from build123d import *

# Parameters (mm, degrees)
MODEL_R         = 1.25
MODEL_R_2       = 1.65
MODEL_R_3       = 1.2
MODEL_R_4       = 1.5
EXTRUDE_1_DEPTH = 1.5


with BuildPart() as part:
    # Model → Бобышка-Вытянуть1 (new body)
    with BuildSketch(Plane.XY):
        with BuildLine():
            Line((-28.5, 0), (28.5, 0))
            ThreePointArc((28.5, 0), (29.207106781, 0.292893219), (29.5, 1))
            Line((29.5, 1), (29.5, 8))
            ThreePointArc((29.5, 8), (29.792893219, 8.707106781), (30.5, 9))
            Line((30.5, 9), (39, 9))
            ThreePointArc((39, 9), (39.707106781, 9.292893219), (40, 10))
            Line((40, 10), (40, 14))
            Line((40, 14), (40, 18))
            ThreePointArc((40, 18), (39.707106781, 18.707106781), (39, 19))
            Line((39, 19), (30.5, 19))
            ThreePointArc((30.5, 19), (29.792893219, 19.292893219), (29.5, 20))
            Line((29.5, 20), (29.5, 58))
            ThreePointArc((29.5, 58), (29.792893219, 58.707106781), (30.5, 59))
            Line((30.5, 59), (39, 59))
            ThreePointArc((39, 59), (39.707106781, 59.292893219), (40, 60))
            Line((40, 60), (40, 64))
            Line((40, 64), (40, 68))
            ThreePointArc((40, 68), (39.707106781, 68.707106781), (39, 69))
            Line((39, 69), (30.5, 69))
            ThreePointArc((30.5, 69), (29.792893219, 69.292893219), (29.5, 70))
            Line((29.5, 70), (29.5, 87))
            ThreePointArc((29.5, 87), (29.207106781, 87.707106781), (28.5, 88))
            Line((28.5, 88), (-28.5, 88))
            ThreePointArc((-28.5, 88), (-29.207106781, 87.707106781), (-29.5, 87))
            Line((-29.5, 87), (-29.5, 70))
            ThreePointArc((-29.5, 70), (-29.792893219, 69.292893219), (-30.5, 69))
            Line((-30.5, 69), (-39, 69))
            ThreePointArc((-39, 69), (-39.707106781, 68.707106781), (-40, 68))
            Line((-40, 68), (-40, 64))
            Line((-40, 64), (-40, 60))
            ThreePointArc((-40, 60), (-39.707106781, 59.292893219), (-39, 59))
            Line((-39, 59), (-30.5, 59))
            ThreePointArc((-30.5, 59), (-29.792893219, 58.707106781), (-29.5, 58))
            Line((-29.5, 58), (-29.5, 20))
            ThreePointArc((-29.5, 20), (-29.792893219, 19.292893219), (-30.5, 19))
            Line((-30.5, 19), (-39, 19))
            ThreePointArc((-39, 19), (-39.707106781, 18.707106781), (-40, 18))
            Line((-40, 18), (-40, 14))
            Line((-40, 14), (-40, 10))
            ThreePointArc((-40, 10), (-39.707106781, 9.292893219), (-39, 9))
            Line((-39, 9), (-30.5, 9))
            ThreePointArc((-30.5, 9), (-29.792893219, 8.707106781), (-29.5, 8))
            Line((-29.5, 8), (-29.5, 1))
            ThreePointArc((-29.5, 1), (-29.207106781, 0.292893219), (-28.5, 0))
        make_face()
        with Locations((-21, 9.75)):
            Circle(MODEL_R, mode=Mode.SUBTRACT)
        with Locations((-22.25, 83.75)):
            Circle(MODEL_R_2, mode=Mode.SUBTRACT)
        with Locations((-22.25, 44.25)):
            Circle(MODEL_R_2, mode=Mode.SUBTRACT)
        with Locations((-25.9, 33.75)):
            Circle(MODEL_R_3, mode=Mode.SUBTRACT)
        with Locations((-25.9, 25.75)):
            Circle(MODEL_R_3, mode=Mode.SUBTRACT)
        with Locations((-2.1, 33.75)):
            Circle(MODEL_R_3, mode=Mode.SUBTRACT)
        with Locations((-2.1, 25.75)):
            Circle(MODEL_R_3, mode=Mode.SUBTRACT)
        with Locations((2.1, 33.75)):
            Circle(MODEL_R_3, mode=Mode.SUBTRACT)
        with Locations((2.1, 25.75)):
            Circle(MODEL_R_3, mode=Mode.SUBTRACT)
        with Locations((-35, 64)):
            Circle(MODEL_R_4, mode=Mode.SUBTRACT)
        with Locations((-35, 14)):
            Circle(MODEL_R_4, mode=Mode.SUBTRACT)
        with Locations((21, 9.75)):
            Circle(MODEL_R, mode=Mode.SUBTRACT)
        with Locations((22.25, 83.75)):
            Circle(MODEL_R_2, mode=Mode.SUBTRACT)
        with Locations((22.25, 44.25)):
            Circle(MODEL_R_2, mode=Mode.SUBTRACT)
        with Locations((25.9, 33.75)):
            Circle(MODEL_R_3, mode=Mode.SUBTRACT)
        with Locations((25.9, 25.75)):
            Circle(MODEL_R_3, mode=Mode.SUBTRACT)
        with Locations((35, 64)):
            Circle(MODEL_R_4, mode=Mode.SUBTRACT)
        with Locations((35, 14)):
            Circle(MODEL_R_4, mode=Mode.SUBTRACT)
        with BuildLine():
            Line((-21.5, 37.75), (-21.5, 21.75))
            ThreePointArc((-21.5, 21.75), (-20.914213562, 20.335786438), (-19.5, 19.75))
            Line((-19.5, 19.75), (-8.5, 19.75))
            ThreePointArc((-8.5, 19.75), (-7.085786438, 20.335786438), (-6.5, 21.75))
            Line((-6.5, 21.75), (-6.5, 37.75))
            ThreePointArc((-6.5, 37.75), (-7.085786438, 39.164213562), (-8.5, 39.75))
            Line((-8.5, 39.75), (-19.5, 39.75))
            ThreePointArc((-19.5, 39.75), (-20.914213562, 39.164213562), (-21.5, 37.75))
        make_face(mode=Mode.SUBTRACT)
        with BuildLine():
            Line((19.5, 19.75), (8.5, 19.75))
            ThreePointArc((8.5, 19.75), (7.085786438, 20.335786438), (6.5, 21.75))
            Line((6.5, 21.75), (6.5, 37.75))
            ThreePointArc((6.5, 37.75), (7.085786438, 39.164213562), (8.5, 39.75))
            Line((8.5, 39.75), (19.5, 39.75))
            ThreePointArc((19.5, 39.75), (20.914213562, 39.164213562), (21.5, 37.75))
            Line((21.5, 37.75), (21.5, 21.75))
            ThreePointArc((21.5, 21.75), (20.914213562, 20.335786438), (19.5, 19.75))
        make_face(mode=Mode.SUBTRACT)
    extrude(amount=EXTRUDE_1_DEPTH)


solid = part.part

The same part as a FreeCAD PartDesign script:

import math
import FreeCAD as App
import Part
import Sketcher
Q = App.Units.Quantity

doc = App.newDocument("Part")
body = doc.addObject("PartDesign::Body", "Body")

# Sketch on XY plane
sketch1 = doc.addObject("Sketcher::SketchObject", "Sketch")
body.addObject(sketch1)
sketch1.AttachmentSupport = (doc.XY_Plane, [""])
sketch1.MapMode = "FlatFace"
sketch1.addGeometry([
    Part.LineSegment(App.Vector(-28.5, 0, 0), App.Vector(28.5, 0, 0)),  # 0
    Part.ArcOfCircle(Part.Circle(App.Vector(28.5, 1, 0), App.Vector(0, 0, 1), 1), math.radians(-90), math.radians(0)),  # 1
    Part.LineSegment(App.Vector(29.5, 1, 0), App.Vector(29.5, 8, 0)),  # 2
    Part.ArcOfCircle(Part.Circle(App.Vector(30.5, 8, 0), App.Vector(0, 0, 1), 1), math.radians(90), math.radians(180)),  # 3
    Part.LineSegment(App.Vector(30.5, 9, 0), App.Vector(39, 9, 0)),  # 4
    Part.ArcOfCircle(Part.Circle(App.Vector(39, 10, 0), App.Vector(0, 0, 1), 1), math.radians(-90), math.radians(0)),  # 5
    Part.LineSegment(App.Vector(40, 10, 0), App.Vector(40, 18, 0)),  # 6
    Part.ArcOfCircle(Part.Circle(App.Vector(39, 18, 0), App.Vector(0, 0, 1), 1), math.radians(0), math.radians(90)),  # 7
    Part.LineSegment(App.Vector(39, 19, 0), App.Vector(30.5, 19, 0)),  # 8
    Part.ArcOfCircle(Part.Circle(App.Vector(30.5, 20, 0), App.Vector(0, 0, 1), 1), math.radians(-180), math.radians(-90)),  # 9
    Part.LineSegment(App.Vector(29.5, 20, 0), App.Vector(29.5, 58, 0)),  # 10
    Part.ArcOfCircle(Part.Circle(App.Vector(30.5, 58, 0), App.Vector(0, 0, 1), 1), math.radians(90), math.radians(180)),  # 11
    Part.LineSegment(App.Vector(30.5, 59, 0), App.Vector(39, 59, 0)),  # 12
    Part.ArcOfCircle(Part.Circle(App.Vector(39, 60, 0), App.Vector(0, 0, 1), 1), math.radians(-90), math.radians(0)),  # 13
    Part.LineSegment(App.Vector(40, 60, 0), App.Vector(40, 68, 0)),  # 14
    Part.ArcOfCircle(Part.Circle(App.Vector(39, 68, 0), App.Vector(0, 0, 1), 1), math.radians(0), math.radians(90)),  # 15
    Part.LineSegment(App.Vector(39, 69, 0), App.Vector(30.5, 69, 0)),  # 16
    Part.ArcOfCircle(Part.Circle(App.Vector(30.5, 70, 0), App.Vector(0, 0, 1), 1), math.radians(-180), math.radians(-90)),  # 17
    Part.LineSegment(App.Vector(29.5, 70, 0), App.Vector(29.5, 87, 0)),  # 18
    Part.ArcOfCircle(Part.Circle(App.Vector(28.5, 87, 0), App.Vector(0, 0, 1), 1), math.radians(0), math.radians(90)),  # 19
    Part.LineSegment(App.Vector(28.5, 88, 0), App.Vector(-28.5, 88, 0)),  # 20
    Part.ArcOfCircle(Part.Circle(App.Vector(-28.5, 87, 0), App.Vector(0, 0, 1), 1), math.radians(90), math.radians(180)),  # 21
    Part.LineSegment(App.Vector(-29.5, 87, 0), App.Vector(-29.5, 70, 0)),  # 22
    Part.ArcOfCircle(Part.Circle(App.Vector(-30.5, 70, 0), App.Vector(0, 0, 1), 1), math.radians(-90), math.radians(0)),  # 23
    Part.LineSegment(App.Vector(-30.5, 69, 0), App.Vector(-39, 69, 0)),  # 24
    Part.ArcOfCircle(Part.Circle(App.Vector(-39, 68, 0), App.Vector(0, 0, 1), 1), math.radians(90), math.radians(180)),  # 25
    Part.LineSegment(App.Vector(-40, 68, 0), App.Vector(-40, 60, 0)),  # 26
    Part.ArcOfCircle(Part.Circle(App.Vector(-39, 60, 0), App.Vector(0, 0, 1), 1), math.radians(-180), math.radians(-90)),  # 27
    Part.LineSegment(App.Vector(-39, 59, 0), App.Vector(-30.5, 59, 0)),  # 28
    Part.ArcOfCircle(Part.Circle(App.Vector(-30.5, 58, 0), App.Vector(0, 0, 1), 1), math.radians(0), math.radians(90)),  # 29
    Part.LineSegment(App.Vector(-29.5, 58, 0), App.Vector(-29.5, 20, 0)),  # 30
    Part.ArcOfCircle(Part.Circle(App.Vector(-30.5, 20, 0), App.Vector(0, 0, 1), 1), math.radians(-90), math.radians(0)),  # 31
    Part.LineSegment(App.Vector(-30.5, 19, 0), App.Vector(-39, 19, 0)),  # 32
    Part.ArcOfCircle(Part.Circle(App.Vector(-39, 18, 0), App.Vector(0, 0, 1), 1), math.radians(90), math.radians(180)),  # 33
    Part.LineSegment(App.Vector(-40, 18, 0), App.Vector(-40, 10, 0)),  # 34
    Part.ArcOfCircle(Part.Circle(App.Vector(-39, 10, 0), App.Vector(0, 0, 1), 1), math.radians(-180), math.radians(-90)),  # 35
    Part.LineSegment(App.Vector(-39, 9, 0), App.Vector(-30.5, 9, 0)),  # 36
    Part.ArcOfCircle(Part.Circle(App.Vector(-30.5, 8, 0), App.Vector(0, 0, 1), 1), math.radians(0), math.radians(90)),  # 37
    Part.LineSegment(App.Vector(-29.5, 8, 0), App.Vector(-29.5, 1, 0)),  # 38
    Part.ArcOfCircle(Part.Circle(App.Vector(-28.5, 1, 0), App.Vector(0, 0, 1), 1), math.radians(-180), math.radians(-90)),  # 39
    Part.Circle(App.Vector(-35, 14, 0), App.Vector(0, 0, 1), 1.5),  # 40
    Part.Circle(App.Vector(-21, 9.8, 0), App.Vector(0, 0, 1), 1.2),  # 41
    Part.Circle(App.Vector(-25.9, 25.8, 0), App.Vector(0, 0, 1), 1.2),  # 42
    Part.Circle(App.Vector(-2.1, 25.8, 0), App.Vector(0, 0, 1), 1.2),  # 43
    Part.Circle(App.Vector(-25.9, 33.8, 0), App.Vector(0, 0, 1), 1.2),  # 44
    Part.Circle(App.Vector(-22.2, 44.2, 0), App.Vector(0, 0, 1), 1.6),  # 45
    Part.LineSegment(App.Vector(-21.5, 21.8, 0), App.Vector(-21.5, 37.8, 0)),  # 46
    Part.ArcOfCircle(Part.Circle(App.Vector(-19.5, 37.7, 0), App.Vector(0, 0, 1), 2), math.radians(90), math.radians(180)),  # 47
    Part.LineSegment(App.Vector(-19.5, 39.8, 0), App.Vector(-8.5, 39.8, 0)),  # 48
    Part.ArcOfCircle(Part.Circle(App.Vector(-8.5, 37.7, 0), App.Vector(0, 0, 1), 2), math.radians(0), math.radians(90)),  # 49
    Part.LineSegment(App.Vector(-6.5, 37.8, 0), App.Vector(-6.5, 21.8, 0)),  # 50
    Part.ArcOfCircle(Part.Circle(App.Vector(-8.5, 21.8, 0), App.Vector(0, 0, 1), 2), math.radians(-90), math.radians(0)),  # 51
    Part.LineSegment(App.Vector(-8.5, 19.8, 0), App.Vector(-19.5, 19.8, 0)),  # 52
    Part.ArcOfCircle(Part.Circle(App.Vector(-19.5, 21.8, 0), App.Vector(0, 0, 1), 2), math.radians(-180), math.radians(-90)),  # 53
    Part.Circle(App.Vector(-2.1, 33.8, 0), App.Vector(0, 0, 1), 1.2),  # 54
    Part.Circle(App.Vector(2.1, 25.8, 0), App.Vector(0, 0, 1), 1.2),  # 55
    Part.Circle(App.Vector(21, 9.8, 0), App.Vector(0, 0, 1), 1.2),  # 56
    Part.Circle(App.Vector(35, 14, 0), App.Vector(0, 0, 1), 1.5),  # 57
    Part.Circle(App.Vector(25.9, 25.8, 0), App.Vector(0, 0, 1), 1.2),  # 58
    Part.Circle(App.Vector(2.1, 33.8, 0), App.Vector(0, 0, 1), 1.2),  # 59
    Part.ArcOfCircle(Part.Circle(App.Vector(19.5, 21.8, 0), App.Vector(0, 0, 1), 2), math.radians(-90), math.radians(0)),  # 60
    Part.LineSegment(App.Vector(19.5, 19.8, 0), App.Vector(8.5, 19.8, 0)),  # 61
    Part.ArcOfCircle(Part.Circle(App.Vector(8.5, 21.8, 0), App.Vector(0, 0, 1), 2), math.radians(-180), math.radians(-90)),  # 62
    Part.LineSegment(App.Vector(6.5, 21.8, 0), App.Vector(6.5, 37.8, 0)),  # 63
    Part.ArcOfCircle(Part.Circle(App.Vector(8.5, 37.7, 0), App.Vector(0, 0, 1), 2), math.radians(90), math.radians(180)),  # 64
    Part.LineSegment(App.Vector(8.5, 39.8, 0), App.Vector(19.5, 39.8, 0)),  # 65
    Part.ArcOfCircle(Part.Circle(App.Vector(19.5, 37.7, 0), App.Vector(0, 0, 1), 2), math.radians(0), math.radians(90)),  # 66
    Part.LineSegment(App.Vector(21.5, 37.8, 0), App.Vector(21.5, 21.8, 0)),  # 67
    Part.Circle(App.Vector(25.9, 33.8, 0), App.Vector(0, 0, 1), 1.2),  # 68
    Part.Circle(App.Vector(22.2, 44.2, 0), App.Vector(0, 0, 1), 1.6),  # 69
    Part.Circle(App.Vector(-35, 64, 0), App.Vector(0, 0, 1), 1.5),  # 70
    Part.Circle(App.Vector(-22.2, 83.8, 0), App.Vector(0, 0, 1), 1.6),  # 71
    Part.Circle(App.Vector(35, 64, 0), App.Vector(0, 0, 1), 1.5),  # 72
    Part.Circle(App.Vector(22.2, 83.8, 0), App.Vector(0, 0, 1), 1.6),  # 73
], False)
sketch1.addConstraint([
    Sketcher.Constraint("Tangent", 0, 2, 1, 1),
    Sketcher.Constraint("Tangent", 1, 2, 2, 1),
    Sketcher.Constraint("Tangent", 2, 2, 3, 2),
    Sketcher.Constraint("Tangent", 3, 1, 4, 1),
    Sketcher.Constraint("Tangent", 4, 2, 5, 1),
    Sketcher.Constraint("Tangent", 5, 2, 6, 1),
    Sketcher.Constraint("Tangent", 6, 2, 7, 1),
    Sketcher.Constraint("Tangent", 7, 2, 8, 1),
    Sketcher.Constraint("Tangent", 8, 2, 9, 2),
    Sketcher.Constraint("Tangent", 9, 1, 10, 1),
    Sketcher.Constraint("Tangent", 10, 2, 11, 2),
    Sketcher.Constraint("Tangent", 11, 1, 12, 1),
    Sketcher.Constraint("Tangent", 12, 2, 13, 1),
    Sketcher.Constraint("Tangent", 13, 2, 14, 1),
    Sketcher.Constraint("Tangent", 14, 2, 15, 1),
    Sketcher.Constraint("Tangent", 15, 2, 16, 1),
    Sketcher.Constraint("Tangent", 16, 2, 17, 2),
    Sketcher.Constraint("Tangent", 17, 1, 18, 1),
    Sketcher.Constraint("Tangent", 18, 2, 19, 1),
    Sketcher.Constraint("Tangent", 19, 2, 20, 1),
    Sketcher.Constraint("Tangent", 20, 2, 21, 1),
    Sketcher.Constraint("Tangent", 21, 2, 22, 1),
    Sketcher.Constraint("Tangent", 22, 2, 23, 2),
    Sketcher.Constraint("Tangent", 23, 1, 24, 1),
    Sketcher.Constraint("Tangent", 24, 2, 25, 1),
    Sketcher.Constraint("Tangent", 25, 2, 26, 1),
    Sketcher.Constraint("Tangent", 26, 2, 27, 1),
    Sketcher.Constraint("Tangent", 27, 2, 28, 1),
    Sketcher.Constraint("Tangent", 28, 2, 29, 2),
    Sketcher.Constraint("Tangent", 29, 1, 30, 1),
    Sketcher.Constraint("Tangent", 30, 2, 31, 2),
    Sketcher.Constraint("Tangent", 31, 1, 32, 1),
    Sketcher.Constraint("Tangent", 32, 2, 33, 1),
    Sketcher.Constraint("Tangent", 33, 2, 34, 1),
    Sketcher.Constraint("Tangent", 34, 2, 35, 1),
    Sketcher.Constraint("Tangent", 35, 2, 36, 1),
    Sketcher.Constraint("Tangent", 36, 2, 37, 2),
    Sketcher.Constraint("Tangent", 37, 1, 38, 1),
    Sketcher.Constraint("Tangent", 38, 2, 39, 1),
    Sketcher.Constraint("Tangent", 39, 2, 0, 1),
    Sketcher.Constraint("Tangent", 46, 2, 47, 2),
    Sketcher.Constraint("Tangent", 47, 1, 48, 1),
    Sketcher.Constraint("Tangent", 48, 2, 49, 2),
    Sketcher.Constraint("Tangent", 49, 1, 50, 1),
    Sketcher.Constraint("Tangent", 50, 2, 51, 2),
    Sketcher.Constraint("Tangent", 51, 1, 52, 1),
    Sketcher.Constraint("Tangent", 52, 2, 53, 2),
    Sketcher.Constraint("Tangent", 53, 1, 46, 1),
    Sketcher.Constraint("Tangent", 60, 1, 61, 1),
    Sketcher.Constraint("Tangent", 61, 2, 62, 2),
    Sketcher.Constraint("Tangent", 62, 1, 63, 1),
    Sketcher.Constraint("Tangent", 63, 2, 64, 2),
    Sketcher.Constraint("Tangent", 64, 1, 65, 1),
    Sketcher.Constraint("Tangent", 65, 2, 66, 2),
    Sketcher.Constraint("Tangent", 66, 1, 67, 1),
    Sketcher.Constraint("Tangent", 67, 2, 60, 2),
    Sketcher.Constraint("Horizontal", 0),
    Sketcher.Constraint("Vertical", 2),
    Sketcher.Constraint("Horizontal", 4),
    Sketcher.Constraint("Vertical", 6),
    Sketcher.Constraint("Horizontal", 8),
    Sketcher.Constraint("Vertical", 10),
    Sketcher.Constraint("Horizontal", 12),
    Sketcher.Constraint("Vertical", 14),
    Sketcher.Constraint("Horizontal", 16),
    Sketcher.Constraint("Vertical", 18),
    Sketcher.Constraint("Horizontal", 20),
    Sketcher.Constraint("Vertical", 22),
    Sketcher.Constraint("Horizontal", 24),
    Sketcher.Constraint("Vertical", 26),
    Sketcher.Constraint("Horizontal", 28),
    Sketcher.Constraint("Vertical", 30),
    Sketcher.Constraint("Horizontal", 32),
    Sketcher.Constraint("Vertical", 34),
    Sketcher.Constraint("Horizontal", 36),
    Sketcher.Constraint("Vertical", 38),
    Sketcher.Constraint("Vertical", 46),
    Sketcher.Constraint("Horizontal", 48),
    Sketcher.Constraint("Vertical", 50),
    Sketcher.Constraint("Horizontal", 52),
    Sketcher.Constraint("Horizontal", 61),
    Sketcher.Constraint("Vertical", 63),
    Sketcher.Constraint("Horizontal", 65),
    Sketcher.Constraint("Vertical", 67),
    Sketcher.Constraint("Equal", 1, 3),
    Sketcher.Constraint("Equal", 3, 5),
    Sketcher.Constraint("Equal", 5, 7),
    Sketcher.Constraint("Equal", 7, 9),
    Sketcher.Constraint("Equal", 9, 11),
    Sketcher.Constraint("Equal", 11, 13),
    Sketcher.Constraint("Equal", 13, 15),
    Sketcher.Constraint("Equal", 15, 17),
    Sketcher.Constraint("Equal", 17, 19),
    Sketcher.Constraint("Equal", 19, 21),
    Sketcher.Constraint("Equal", 21, 23),
    Sketcher.Constraint("Equal", 23, 25),
    Sketcher.Constraint("Equal", 25, 27),
    Sketcher.Constraint("Equal", 27, 29),
    Sketcher.Constraint("Equal", 29, 31),
    Sketcher.Constraint("Equal", 31, 33),
    Sketcher.Constraint("Equal", 33, 35),
    Sketcher.Constraint("Equal", 35, 37),
    Sketcher.Constraint("Equal", 37, 39),
    Sketcher.Constraint("Equal", 42, 43),
    Sketcher.Constraint("Equal", 43, 44),
    Sketcher.Constraint("Equal", 47, 49),
    Sketcher.Constraint("Equal", 49, 51),
    Sketcher.Constraint("Equal", 51, 53),
    Sketcher.Constraint("Equal", 44, 54),
    Sketcher.Constraint("Equal", 54, 55),
    Sketcher.Constraint("Equal", 41, 56),
    Sketcher.Constraint("Equal", 40, 57),
    Sketcher.Constraint("Equal", 55, 58),
    Sketcher.Constraint("Equal", 58, 59),
    Sketcher.Constraint("Equal", 53, 60),
    Sketcher.Constraint("Equal", 60, 62),
    Sketcher.Constraint("Equal", 62, 64),
    Sketcher.Constraint("Equal", 64, 66),
    Sketcher.Constraint("Equal", 59, 68),
    Sketcher.Constraint("Equal", 45, 69),
    Sketcher.Constraint("Equal", 57, 70),
    Sketcher.Constraint("Equal", 69, 71),
    Sketcher.Constraint("Equal", 70, 72),
    Sketcher.Constraint("Equal", 71, 73),
    Sketcher.Constraint("Symmetric", 0, 2, 39, 2, -1, 1),
    Sketcher.Constraint("Symmetric", 17, 3, 23, 3, -2),
    Sketcher.Constraint("Symmetric", 13, 3, 27, 3, -2),
    Sketcher.Constraint("Symmetric", 9, 3, 31, 3, -2),
    Sketcher.Constraint("Symmetric", 5, 3, 35, 3, -2),
    Sketcher.Constraint("Symmetric", 43, 3, 55, 3, -2),
    Sketcher.Constraint("Symmetric", 41, 3, 56, 3, -2),
    Sketcher.Constraint("Symmetric", 40, 3, 57, 3, -2),
    Sketcher.Constraint("Symmetric", 42, 3, 58, 3, -2),
    Sketcher.Constraint("Symmetric", 54, 3, 59, 3, -2),
    Sketcher.Constraint("Symmetric", 53, 3, 60, 3, -2),
    Sketcher.Constraint("Symmetric", 49, 3, 64, 3, -2),
    Sketcher.Constraint("Symmetric", 44, 3, 68, 3, -2),
    Sketcher.Constraint("Symmetric", 45, 3, 69, 3, -2),
    Sketcher.Constraint("Symmetric", 70, 3, 72, 3, -2),
    Sketcher.Constraint("Symmetric", 71, 3, 73, 3, -2),
    Sketcher.Constraint("Horizontal", 42, 3, 43, 3),
    Sketcher.Constraint("Horizontal", 44, 3, 54, 3),
    Sketcher.Constraint("Vertical", 3, 3, 9, 3),
    Sketcher.Constraint("Vertical", 7, 3, 13, 3),
    Sketcher.Constraint("Vertical", 11, 3, 17, 3),
    Sketcher.Constraint("Vertical", 42, 3, 44, 3),
    Sketcher.Constraint("Vertical", 43, 3, 54, 3),
    Sketcher.Constraint("Vertical", 40, 3, 70, 3),
    Sketcher.Constraint("Vertical", 45, 3, 71, 3),
    Sketcher.Constraint("Equal", 6, 14),
    Sketcher.Constraint("Diameter", 40, Q("3 mm")),
    Sketcher.Constraint("Radius", 1, Q("1 mm")),
    Sketcher.Constraint("Radius", 47, Q("2 mm")),
    Sketcher.Constraint("Diameter", 41, Q("2.5 mm")),
    Sketcher.Constraint("Diameter", 42, Q("2.4 mm")),
    Sketcher.Constraint("Diameter", 45, Q("3.3 mm")),
    Sketcher.Constraint("DistanceX", 0, 1, 0, 2, Q("57 mm")),
    Sketcher.Constraint("DistanceX", 48, 1, 48, 2, Q("11 mm")),
    Sketcher.Constraint("DistanceY", 2, 1, 2, 2, Q("7 mm")),
    Sketcher.Constraint("DistanceY", 6, 1, 6, 2, Q("8 mm")),
    Sketcher.Constraint("DistanceY", 10, 1, 10, 2, Q("38 mm")),
    Sketcher.Constraint("DistanceY", 18, 1, 18, 2, Q("17 mm")),
    Sketcher.Constraint("DistanceY", 46, 1, 46, 2, Q("16 mm")),
    Sketcher.Constraint("DistanceX", 4, 1, 4, 2, Q("8.5 mm")),
    Sketcher.Constraint("DistanceX", 40, 3, -1, 1, Q("35 mm")),
    Sketcher.Constraint("DistanceY", -1, 1, 40, 3, Q("14 mm")),
    Sketcher.Constraint("DistanceX", 41, 3, -1, 1, Q("21 mm")),
    Sketcher.Constraint("DistanceY", -1, 1, 70, 3, Q("64 mm")),
    Sketcher.Constraint("DistanceX", 42, 3, -1, 1, Q("25.9 mm")),
    Sketcher.Constraint("DistanceX", 43, 3, -1, 1, Q("2.1 mm")),
    Sketcher.Constraint("DistanceX", 47, 3, -1, 1, Q("19.5 mm")),
    Sketcher.Constraint("DistanceY", -1, 1, 41, 3, Q("9.75 mm")),
    Sketcher.Constraint("DistanceY", -1, 1, 42, 3, Q("25.75 mm")),
    Sketcher.Constraint("DistanceY", -1, 1, 44, 3, Q("33.75 mm")),
    Sketcher.Constraint("DistanceX", 45, 3, -1, 1, Q("22.25 mm")),
    Sketcher.Constraint("DistanceY", -1, 1, 45, 3, Q("44.25 mm")),
    Sketcher.Constraint("DistanceY", -1, 1, 47, 3, Q("37.75 mm")),
    Sketcher.Constraint("DistanceY", -1, 1, 71, 3, Q("83.75 mm")),
])
pad1 = doc.addObject("PartDesign::Pad", "Pad")
body.addObject(pad1)
pad1.Profile = sketch1
pad1.Length = 1.5

doc.recompute()
